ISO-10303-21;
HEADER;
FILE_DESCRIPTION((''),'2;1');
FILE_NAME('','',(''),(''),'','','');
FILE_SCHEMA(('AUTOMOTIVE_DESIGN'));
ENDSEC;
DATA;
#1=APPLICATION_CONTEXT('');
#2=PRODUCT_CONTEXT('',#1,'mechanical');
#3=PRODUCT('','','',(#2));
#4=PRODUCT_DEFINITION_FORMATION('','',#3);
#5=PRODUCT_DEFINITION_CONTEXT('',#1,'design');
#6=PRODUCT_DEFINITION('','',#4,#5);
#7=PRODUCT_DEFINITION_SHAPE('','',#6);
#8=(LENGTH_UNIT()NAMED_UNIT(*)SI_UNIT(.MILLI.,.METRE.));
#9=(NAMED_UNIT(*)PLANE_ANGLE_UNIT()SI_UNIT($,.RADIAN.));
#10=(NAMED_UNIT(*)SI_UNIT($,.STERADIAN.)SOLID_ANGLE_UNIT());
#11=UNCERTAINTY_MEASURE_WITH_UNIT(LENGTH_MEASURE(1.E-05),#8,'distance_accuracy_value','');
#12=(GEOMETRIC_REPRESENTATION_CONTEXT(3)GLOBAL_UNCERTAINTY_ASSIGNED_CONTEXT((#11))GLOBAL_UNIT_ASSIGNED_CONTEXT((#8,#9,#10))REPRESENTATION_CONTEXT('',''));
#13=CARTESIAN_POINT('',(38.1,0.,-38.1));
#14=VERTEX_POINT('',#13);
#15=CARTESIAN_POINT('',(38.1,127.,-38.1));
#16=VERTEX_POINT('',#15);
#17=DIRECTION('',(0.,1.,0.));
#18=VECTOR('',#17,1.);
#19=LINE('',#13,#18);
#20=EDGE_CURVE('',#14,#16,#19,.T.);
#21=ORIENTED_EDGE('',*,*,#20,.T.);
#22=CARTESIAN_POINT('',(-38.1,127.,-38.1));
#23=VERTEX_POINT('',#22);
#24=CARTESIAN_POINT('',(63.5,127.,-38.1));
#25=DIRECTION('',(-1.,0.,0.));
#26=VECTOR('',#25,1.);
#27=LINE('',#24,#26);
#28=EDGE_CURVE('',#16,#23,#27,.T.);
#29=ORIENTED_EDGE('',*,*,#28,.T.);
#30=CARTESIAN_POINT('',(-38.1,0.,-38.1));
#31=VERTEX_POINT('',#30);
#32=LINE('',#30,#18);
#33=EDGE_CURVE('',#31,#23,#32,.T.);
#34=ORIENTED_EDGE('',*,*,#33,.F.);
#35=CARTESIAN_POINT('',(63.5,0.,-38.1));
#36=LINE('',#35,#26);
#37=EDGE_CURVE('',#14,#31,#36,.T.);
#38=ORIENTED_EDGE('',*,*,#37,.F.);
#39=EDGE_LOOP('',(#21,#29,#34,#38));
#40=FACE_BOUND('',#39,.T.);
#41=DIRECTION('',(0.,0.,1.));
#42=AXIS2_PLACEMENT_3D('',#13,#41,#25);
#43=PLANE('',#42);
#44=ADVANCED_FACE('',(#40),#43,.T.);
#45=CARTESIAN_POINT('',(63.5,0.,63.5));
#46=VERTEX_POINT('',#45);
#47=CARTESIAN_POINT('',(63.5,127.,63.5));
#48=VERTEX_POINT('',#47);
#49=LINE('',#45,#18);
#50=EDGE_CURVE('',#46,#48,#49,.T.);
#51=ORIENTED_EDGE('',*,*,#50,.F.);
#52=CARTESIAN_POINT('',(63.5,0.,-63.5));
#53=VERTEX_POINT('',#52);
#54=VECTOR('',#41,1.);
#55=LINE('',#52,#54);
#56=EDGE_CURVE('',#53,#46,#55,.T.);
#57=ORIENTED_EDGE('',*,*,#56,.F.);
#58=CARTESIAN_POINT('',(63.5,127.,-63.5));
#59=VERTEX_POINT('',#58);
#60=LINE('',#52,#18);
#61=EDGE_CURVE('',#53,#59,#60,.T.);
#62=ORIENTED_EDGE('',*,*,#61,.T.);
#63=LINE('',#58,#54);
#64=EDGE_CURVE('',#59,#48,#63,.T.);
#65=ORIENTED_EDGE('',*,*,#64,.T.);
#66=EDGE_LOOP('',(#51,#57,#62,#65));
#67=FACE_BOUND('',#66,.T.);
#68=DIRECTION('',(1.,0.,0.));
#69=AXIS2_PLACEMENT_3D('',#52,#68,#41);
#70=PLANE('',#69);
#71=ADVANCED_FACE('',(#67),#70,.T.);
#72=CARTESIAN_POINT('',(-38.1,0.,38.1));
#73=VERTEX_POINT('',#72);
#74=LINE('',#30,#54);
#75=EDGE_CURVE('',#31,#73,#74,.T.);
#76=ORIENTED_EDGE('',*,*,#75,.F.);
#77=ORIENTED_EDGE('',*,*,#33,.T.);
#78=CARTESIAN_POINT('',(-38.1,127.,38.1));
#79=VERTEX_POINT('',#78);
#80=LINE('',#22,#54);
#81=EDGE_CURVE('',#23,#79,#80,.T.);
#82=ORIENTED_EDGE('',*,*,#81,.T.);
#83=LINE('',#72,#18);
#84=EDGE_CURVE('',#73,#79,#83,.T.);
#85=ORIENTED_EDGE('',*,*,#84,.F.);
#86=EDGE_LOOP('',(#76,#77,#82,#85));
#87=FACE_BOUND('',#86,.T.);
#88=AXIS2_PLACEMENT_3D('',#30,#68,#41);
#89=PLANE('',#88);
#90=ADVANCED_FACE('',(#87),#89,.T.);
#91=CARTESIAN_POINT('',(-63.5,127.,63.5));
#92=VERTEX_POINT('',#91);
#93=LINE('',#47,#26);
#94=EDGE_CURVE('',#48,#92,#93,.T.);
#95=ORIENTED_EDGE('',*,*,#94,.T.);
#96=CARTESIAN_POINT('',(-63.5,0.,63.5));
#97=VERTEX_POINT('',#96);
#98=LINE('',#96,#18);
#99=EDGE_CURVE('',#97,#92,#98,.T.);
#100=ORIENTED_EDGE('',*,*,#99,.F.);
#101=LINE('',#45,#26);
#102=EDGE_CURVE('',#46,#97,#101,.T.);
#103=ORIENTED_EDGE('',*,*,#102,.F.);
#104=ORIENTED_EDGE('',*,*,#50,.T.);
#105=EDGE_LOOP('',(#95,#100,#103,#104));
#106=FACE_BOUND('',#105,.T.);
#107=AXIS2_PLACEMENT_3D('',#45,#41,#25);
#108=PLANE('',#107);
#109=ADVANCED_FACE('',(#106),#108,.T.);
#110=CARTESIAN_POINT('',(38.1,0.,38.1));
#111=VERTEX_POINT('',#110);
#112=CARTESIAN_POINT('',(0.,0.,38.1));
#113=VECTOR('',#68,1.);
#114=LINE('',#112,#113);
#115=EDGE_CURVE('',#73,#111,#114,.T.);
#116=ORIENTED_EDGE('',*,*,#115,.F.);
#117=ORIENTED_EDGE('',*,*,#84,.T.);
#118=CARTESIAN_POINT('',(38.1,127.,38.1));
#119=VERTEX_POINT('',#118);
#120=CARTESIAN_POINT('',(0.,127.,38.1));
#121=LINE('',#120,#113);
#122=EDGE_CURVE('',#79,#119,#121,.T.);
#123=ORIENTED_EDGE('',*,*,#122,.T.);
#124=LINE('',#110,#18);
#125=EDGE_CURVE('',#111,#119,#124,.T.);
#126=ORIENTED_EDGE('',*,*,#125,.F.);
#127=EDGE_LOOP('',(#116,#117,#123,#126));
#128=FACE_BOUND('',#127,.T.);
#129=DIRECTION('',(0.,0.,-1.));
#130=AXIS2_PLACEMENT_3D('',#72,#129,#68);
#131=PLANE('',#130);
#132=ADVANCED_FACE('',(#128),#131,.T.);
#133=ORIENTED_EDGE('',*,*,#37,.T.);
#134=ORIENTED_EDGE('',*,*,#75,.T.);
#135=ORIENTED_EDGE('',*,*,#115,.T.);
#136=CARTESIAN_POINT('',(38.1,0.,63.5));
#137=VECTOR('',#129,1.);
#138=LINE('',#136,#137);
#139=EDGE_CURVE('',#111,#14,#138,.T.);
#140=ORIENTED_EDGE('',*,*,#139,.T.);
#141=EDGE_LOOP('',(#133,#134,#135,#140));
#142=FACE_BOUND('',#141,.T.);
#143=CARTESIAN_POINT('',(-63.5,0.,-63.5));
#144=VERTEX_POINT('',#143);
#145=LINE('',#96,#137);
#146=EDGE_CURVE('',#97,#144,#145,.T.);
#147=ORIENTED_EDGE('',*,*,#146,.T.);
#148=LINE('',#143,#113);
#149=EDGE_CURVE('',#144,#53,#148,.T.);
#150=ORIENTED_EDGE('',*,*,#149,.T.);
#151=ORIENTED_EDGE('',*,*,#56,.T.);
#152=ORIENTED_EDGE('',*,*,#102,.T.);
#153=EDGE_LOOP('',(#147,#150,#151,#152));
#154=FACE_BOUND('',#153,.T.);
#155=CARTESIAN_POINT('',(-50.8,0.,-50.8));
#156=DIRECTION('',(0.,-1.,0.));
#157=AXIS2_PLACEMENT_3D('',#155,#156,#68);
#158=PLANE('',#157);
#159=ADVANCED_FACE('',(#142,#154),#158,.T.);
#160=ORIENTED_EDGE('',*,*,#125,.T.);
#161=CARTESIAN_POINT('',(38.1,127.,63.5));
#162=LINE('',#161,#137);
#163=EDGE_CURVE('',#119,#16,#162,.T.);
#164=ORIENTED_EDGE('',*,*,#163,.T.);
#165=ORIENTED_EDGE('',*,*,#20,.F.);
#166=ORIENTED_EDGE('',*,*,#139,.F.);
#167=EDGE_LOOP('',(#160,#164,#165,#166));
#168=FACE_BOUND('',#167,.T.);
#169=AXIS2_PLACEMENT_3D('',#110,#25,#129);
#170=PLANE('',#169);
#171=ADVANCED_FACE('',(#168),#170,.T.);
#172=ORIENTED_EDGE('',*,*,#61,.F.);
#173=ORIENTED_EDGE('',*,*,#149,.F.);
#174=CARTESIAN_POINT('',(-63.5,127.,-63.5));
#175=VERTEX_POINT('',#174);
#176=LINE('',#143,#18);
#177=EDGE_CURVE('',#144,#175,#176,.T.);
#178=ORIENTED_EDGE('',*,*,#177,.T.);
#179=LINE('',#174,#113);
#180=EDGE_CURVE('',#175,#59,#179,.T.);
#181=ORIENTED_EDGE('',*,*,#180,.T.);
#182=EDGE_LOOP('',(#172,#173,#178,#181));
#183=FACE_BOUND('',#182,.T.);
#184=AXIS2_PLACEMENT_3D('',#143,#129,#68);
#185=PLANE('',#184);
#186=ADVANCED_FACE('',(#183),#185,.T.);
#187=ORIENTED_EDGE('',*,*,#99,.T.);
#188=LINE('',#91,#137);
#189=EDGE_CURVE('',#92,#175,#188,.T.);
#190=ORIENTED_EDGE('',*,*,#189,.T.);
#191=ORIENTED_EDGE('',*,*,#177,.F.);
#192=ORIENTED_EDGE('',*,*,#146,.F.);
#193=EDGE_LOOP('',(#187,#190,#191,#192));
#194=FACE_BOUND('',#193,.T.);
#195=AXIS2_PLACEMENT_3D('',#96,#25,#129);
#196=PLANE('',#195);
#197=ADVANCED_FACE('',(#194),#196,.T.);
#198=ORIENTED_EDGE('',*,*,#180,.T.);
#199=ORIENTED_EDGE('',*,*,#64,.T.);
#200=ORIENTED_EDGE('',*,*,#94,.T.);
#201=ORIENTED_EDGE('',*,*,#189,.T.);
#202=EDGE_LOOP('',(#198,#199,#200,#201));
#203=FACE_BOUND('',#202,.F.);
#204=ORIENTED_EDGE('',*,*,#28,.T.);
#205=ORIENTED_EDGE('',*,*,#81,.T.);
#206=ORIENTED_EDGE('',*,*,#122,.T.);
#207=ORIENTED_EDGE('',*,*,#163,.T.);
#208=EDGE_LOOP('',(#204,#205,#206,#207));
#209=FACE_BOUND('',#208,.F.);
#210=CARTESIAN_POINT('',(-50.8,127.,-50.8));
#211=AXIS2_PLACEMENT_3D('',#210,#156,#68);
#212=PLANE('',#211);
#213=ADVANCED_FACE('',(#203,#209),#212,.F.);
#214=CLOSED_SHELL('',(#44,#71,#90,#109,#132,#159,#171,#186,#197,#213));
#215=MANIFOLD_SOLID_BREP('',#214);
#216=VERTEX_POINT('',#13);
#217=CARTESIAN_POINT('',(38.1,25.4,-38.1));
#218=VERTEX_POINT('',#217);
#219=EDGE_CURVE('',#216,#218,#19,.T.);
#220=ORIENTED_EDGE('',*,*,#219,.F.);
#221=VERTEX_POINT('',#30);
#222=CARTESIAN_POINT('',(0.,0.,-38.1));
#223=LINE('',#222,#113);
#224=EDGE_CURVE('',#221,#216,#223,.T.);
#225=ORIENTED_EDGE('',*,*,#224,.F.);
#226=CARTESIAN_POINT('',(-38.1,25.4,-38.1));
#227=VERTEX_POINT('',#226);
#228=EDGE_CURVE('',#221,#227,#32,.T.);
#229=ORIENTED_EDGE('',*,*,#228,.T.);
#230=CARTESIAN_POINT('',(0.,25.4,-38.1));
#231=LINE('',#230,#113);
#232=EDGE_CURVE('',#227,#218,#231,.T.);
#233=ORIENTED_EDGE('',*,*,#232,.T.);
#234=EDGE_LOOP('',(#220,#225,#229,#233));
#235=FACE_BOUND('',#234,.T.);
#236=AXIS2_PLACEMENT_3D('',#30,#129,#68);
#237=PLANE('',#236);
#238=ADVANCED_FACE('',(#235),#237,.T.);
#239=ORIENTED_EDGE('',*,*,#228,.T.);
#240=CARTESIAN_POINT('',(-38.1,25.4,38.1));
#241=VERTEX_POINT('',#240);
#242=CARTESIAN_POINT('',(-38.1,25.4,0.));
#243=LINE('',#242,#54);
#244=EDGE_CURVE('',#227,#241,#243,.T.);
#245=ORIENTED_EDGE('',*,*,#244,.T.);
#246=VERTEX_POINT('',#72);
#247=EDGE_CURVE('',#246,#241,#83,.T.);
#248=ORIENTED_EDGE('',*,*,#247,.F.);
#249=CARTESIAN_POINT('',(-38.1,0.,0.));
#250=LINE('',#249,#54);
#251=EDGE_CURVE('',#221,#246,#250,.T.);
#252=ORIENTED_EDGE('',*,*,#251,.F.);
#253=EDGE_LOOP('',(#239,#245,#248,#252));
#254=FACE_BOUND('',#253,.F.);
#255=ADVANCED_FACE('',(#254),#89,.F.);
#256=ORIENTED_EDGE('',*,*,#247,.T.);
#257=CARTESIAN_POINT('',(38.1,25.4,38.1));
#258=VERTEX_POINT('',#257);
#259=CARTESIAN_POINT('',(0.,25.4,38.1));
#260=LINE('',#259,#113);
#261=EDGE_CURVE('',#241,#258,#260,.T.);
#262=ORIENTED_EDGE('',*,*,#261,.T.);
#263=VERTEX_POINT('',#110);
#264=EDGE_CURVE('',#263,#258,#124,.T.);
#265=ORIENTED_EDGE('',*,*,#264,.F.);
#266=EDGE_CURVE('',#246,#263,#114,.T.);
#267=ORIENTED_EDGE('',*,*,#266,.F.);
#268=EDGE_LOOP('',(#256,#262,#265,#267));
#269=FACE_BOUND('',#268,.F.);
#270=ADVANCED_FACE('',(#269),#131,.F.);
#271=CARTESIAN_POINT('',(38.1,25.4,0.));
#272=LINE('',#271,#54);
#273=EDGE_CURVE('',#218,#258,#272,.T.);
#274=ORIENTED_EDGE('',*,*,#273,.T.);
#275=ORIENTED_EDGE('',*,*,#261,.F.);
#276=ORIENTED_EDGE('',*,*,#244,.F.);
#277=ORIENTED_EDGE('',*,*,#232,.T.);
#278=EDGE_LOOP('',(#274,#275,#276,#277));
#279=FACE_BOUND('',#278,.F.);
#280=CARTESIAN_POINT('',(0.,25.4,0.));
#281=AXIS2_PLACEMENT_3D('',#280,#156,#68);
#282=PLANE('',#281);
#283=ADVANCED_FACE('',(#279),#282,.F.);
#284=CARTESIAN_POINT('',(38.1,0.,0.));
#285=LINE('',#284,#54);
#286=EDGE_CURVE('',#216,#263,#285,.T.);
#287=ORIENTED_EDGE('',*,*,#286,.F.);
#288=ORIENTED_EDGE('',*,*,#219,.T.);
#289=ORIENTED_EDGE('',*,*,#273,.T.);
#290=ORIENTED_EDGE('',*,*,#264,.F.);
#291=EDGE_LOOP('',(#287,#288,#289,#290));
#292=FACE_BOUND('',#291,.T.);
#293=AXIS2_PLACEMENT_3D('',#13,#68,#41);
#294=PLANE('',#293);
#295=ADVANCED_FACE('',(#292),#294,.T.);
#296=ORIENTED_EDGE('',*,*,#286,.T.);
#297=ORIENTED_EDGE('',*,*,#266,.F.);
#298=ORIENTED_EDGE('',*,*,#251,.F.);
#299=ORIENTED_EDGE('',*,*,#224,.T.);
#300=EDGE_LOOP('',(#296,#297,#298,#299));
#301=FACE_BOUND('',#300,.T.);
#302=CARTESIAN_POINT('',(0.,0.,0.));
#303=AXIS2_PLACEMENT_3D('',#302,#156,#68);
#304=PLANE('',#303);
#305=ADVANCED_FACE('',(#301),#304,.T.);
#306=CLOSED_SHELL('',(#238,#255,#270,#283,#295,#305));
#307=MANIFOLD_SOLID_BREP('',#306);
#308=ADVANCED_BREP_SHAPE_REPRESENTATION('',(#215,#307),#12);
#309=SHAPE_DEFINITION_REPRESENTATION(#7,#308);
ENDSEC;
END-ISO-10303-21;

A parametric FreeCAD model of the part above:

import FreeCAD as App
import Part
import Sketcher
from FreeCAD import Vector
Q = App.Units.Quantity


def add_polygon(sketch, points):
    """Adds a closed chain of lines whose ends are joined by coincident constraints."""
    first, n = sketch.GeometryCount, len(points)
    for a, b in zip(points, points[1:] + points[:1]):
        sketch.addGeometry(Part.LineSegment(App.Vector(*a, 0), App.Vector(*b, 0)), False)
    for i in range(n):
        sketch.addConstraint(Sketcher.Constraint("Coincident", first + i, 2, first + (i + 1) % n, 1))

doc = App.newDocument("Part")
params = doc.addObject("Spreadsheet::Sheet", "Params")
for row, (alias, value) in enumerate([
    ("sketch1_width", "5 in"),
    ("sketch1_width2", "3 in"),
    ("pad1_length", "5 in"),
    ("sketch2_width", "3 in"),
    ("pad2_length", "1 in"),
], start=1):
    params.set(f"A{row}", alias)
    params.set(f"B{row}", "=" + value)
    params.setAlias(f"B{row}", alias)

body = doc.addObject("PartDesign::Body", "Body")

# Sketch on XZ plane
sketch1 = doc.addObject("Sketcher::SketchObject", "Sketch")
body.addObject(sketch1)
sketch1.AttachmentSupport = (doc.XZ_Plane, [""])
sketch1.MapMode = "FlatFace"
add_polygon(sketch1, [(-64, 64), (-64, -64), (64, -64), (64, 64)])  # lines 0-3
add_polygon(sketch1, [(-38, -38), (-38, 38), (38, 38), (38, -38)])  # lines 4-7
sketch1.addConstraint(Sketcher.Constraint("Vertical", 0))
sketch1.addConstraint(Sketcher.Constraint("Horizontal", 1))
sketch1.addConstraint(Sketcher.Constraint("Vertical", 2))
sketch1.addConstraint(Sketcher.Constraint("Horizontal", 3))
sketch1.addConstraint(Sketcher.Constraint("Vertical", 4))
sketch1.addConstraint(Sketcher.Constraint("Horizontal", 5))
sketch1.addConstraint(Sketcher.Constraint("Vertical", 6))
sketch1.addConstraint(Sketcher.Constraint("Horizontal", 7))
sketch1.addConstraint(Sketcher.Constraint("Symmetric", 0, 2, 2, 2, -1, 1))
sketch1.addConstraint(Sketcher.Constraint("Symmetric", 4, 2, 6, 2, -1, 1))
sketch1.addConstraint(Sketcher.Constraint("Equal", 3, 0))
sketch1.addConstraint(Sketcher.Constraint("Equal", 7, 4))
sketch1.addConstraint(Sketcher.Constraint("DistanceX", 1, 1, 1, 2, Q("5 in")))
sketch1.addConstraint(Sketcher.Constraint("DistanceX", 5, 1, 5, 2, Q("3 in")))
sketch1.setExpression("Constraints[20]", "Params.sketch1_width")
sketch1.setExpression("Constraints[21]", "Params.sketch1_width2")
pad1 = doc.addObject("PartDesign::Pad", "Pad")
body.addObject(pad1)
pad1.Profile = sketch1
pad1.setExpression("Length", "Params.pad1_length")
pad1.Reversed = True
body2 = doc.addObject("PartDesign::Body", "Body001")

# Sketch on XZ plane
sketch2 = doc.addObject("Sketcher::SketchObject", "Sketch001")
body2.addObject(sketch2)
sketch2.AttachmentSupport = (doc.getObject("XZ_Plane001"), [""])
sketch2.MapMode = "FlatFace"
add_polygon(sketch2, [(-38, 38), (-38, -38), (38, -38), (38, 38)])  # lines 0-3
sketch2.addConstraint(Sketcher.Constraint("Vertical", 0))
sketch2.addConstraint(Sketcher.Constraint("Horizontal", 1))
sketch2.addConstraint(Sketcher.Constraint("Vertical", 2))
sketch2.addConstraint(Sketcher.Constraint("Horizontal", 3))
sketch2.addConstraint(Sketcher.Constraint("Symmetric", 0, 2, 2, 2, -1, 1))
sketch2.addConstraint(Sketcher.Constraint("Equal", 3, 0))
sketch2.addConstraint(Sketcher.Constraint("DistanceX", 1, 1, 1, 2, Q("3 in")))
sketch2.setExpression("Constraints[10]", "Params.sketch2_width")
pad2 = doc.addObject("PartDesign::Pad", "Pad001")
body2.addObject(pad2)
pad2.Profile = sketch2
pad2.setExpression("Length", "Params.pad2_length")
pad2.Reversed = True

doc.recompute()
